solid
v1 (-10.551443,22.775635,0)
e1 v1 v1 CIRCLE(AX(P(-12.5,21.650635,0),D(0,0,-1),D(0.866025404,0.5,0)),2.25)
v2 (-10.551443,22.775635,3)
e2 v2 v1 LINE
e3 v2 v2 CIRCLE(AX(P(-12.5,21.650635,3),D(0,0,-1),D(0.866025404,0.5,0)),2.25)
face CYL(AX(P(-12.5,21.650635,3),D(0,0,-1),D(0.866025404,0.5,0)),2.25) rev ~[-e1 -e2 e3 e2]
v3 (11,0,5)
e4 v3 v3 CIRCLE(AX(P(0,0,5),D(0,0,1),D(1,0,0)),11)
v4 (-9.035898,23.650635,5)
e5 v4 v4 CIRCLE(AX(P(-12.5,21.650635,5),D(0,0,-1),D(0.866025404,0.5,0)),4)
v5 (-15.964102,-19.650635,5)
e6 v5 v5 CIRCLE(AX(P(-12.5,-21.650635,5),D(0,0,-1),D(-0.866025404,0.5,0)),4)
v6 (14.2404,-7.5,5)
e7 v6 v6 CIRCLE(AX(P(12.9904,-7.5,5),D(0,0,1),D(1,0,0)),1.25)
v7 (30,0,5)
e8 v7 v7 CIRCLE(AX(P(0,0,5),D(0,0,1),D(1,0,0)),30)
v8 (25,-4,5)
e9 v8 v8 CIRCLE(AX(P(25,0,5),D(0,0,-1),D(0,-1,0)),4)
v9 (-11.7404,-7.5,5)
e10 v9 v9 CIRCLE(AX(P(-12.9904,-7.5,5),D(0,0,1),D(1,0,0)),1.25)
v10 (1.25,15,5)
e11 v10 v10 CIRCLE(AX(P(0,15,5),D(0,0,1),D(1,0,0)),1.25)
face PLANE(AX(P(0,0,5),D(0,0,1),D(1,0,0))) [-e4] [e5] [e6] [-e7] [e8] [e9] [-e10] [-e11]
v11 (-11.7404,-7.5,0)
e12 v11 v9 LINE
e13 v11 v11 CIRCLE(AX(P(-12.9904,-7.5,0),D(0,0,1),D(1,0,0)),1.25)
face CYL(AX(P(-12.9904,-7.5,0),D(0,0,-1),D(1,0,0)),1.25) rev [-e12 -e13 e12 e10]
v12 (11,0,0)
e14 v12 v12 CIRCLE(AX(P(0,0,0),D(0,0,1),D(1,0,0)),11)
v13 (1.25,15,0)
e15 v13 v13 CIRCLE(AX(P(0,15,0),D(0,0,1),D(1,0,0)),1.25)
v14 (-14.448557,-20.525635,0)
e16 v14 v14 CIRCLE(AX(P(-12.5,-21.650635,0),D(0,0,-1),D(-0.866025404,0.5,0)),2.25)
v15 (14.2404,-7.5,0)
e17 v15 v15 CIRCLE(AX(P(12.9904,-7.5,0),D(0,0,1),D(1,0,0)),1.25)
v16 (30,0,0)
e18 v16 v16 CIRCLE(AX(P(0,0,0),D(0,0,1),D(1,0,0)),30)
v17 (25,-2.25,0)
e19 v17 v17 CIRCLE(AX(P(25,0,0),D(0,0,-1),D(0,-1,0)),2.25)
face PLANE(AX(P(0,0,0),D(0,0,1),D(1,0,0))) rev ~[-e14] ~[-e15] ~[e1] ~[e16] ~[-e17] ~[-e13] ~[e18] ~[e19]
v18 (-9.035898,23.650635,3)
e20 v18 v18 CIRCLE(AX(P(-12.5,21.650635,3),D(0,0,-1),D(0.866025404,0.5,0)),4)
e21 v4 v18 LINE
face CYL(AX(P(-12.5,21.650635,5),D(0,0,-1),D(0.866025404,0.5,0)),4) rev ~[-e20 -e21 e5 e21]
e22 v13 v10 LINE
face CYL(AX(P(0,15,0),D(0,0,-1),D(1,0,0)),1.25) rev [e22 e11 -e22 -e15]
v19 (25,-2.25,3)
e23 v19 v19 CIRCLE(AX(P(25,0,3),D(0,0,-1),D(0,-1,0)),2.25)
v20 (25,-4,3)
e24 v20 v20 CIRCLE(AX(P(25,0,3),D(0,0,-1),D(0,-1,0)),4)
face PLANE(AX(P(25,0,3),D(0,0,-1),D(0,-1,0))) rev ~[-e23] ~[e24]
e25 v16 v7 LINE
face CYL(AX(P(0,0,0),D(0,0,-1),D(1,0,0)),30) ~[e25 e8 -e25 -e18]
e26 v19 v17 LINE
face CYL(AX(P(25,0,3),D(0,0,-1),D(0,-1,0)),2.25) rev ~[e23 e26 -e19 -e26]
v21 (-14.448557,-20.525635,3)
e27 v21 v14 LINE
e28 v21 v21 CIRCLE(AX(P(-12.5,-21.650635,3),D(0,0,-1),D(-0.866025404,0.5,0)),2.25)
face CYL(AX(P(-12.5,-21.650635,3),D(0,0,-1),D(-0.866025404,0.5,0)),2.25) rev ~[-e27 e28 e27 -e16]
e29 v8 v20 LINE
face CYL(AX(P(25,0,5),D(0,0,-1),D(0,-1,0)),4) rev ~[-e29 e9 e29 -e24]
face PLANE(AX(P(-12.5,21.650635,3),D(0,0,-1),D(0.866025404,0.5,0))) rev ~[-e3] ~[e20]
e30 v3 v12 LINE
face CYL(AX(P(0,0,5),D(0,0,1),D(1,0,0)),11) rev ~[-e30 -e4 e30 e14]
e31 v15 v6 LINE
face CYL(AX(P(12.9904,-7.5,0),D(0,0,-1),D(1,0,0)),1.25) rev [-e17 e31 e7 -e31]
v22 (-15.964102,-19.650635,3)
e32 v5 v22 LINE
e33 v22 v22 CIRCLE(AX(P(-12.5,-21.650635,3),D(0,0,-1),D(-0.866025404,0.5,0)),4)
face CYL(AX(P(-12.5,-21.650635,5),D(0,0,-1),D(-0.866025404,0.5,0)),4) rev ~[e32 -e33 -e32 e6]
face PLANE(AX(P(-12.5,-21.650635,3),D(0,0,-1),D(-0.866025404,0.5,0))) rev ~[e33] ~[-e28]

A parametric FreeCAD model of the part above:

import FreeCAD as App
import Part
import Sketcher
Q = App.Units.Quantity

doc = App.newDocument("Part")
body = doc.addObject("PartDesign::Body", "Body")

sketch1 = body.newObject("Sketcher::SketchObject", "Sketch")
sketch1.AttachmentSupport = (doc.getObject("XY_Plane"), [""])
sketch1.MapMode = "FlatFace"
sketch1.addGeometry([
    Part.Circle(App.Vector(0, 0, 0), App.Vector(0, 0, 1), 30),
    Part.Circle(App.Vector(-13, -7.5, 0), App.Vector(0, 0, 1), 1.2),
    Part.Circle(App.Vector(13, -7.5, 0), App.Vector(0, 0, 1), 1.2),
    Part.Circle(App.Vector(0, 0, 0), App.Vector(0, 0, 1), 10),
    Part.Circle(App.Vector(0, 15, 0), App.Vector(0, 0, 1), 1.2),
], False)
sketch1.addConstraint([
    Sketcher.Constraint("Coincident", 0, 3, -1, 1),
    Sketcher.Constraint("Coincident", 3, 3, -1, 1),
    Sketcher.Constraint("Equal", 1, 2),
    Sketcher.Constraint("Equal", 2, 4),
    Sketcher.Constraint("Symmetric", 1, 3, 2, 3, -2),
    Sketcher.Constraint("PointOnObject", 4, 3, -2),
    Sketcher.Constraint("Diameter", 0, Q("60 mm")),
    Sketcher.Constraint("Diameter", 3, Q("20 mm")),
    Sketcher.Constraint("Diameter", 1, Q("2.5 mm")),
    Sketcher.Constraint("DistanceY", -1, 1, 4, 3, Q("15 mm")),
    Sketcher.Constraint("DistanceY", 1, 3, -1, 1, Q("7.5 mm")),
    Sketcher.Constraint("DistanceX", 1, 3, -1, 1, Q("12.9904 mm")),
])
pad1 = body.newObject("PartDesign::Pad", "Pad")
pad1.Profile = sketch1
pad1.Length = 5

sketch2 = body.newObject("Sketcher::SketchObject", "Sketch001")
sketch2.AttachmentSupport = (doc.getObject("XY_Plane"), [""])
sketch2.MapMode = "FlatFace"
sketch2.AttachmentOffset = App.Placement(App.Vector(0, 0, 5), App.Rotation())
sketch2.addGeometry(Part.Circle(App.Vector(25, 0, 0), App.Vector(0, 0, 1), 2.2), False)
sketch2.addConstraint([
    Sketcher.Constraint("PointOnObject", 0, 3, -1),
    Sketcher.Constraint("Diameter", 0, Q("4.5 mm")),
    Sketcher.Constraint("DistanceX", -1, 1, 0, 3, Q("25 mm")),
])
doc.recompute()
hole = body.newObject("PartDesign::Hole", "Hole")
hole.Profile = sketch2
hole.ThreadType = "None"
hole.Diameter = 4.5
hole.DepthType = "ThroughAll"
hole.HoleCutType = "Counterbore"
hole.HoleCutDiameter = 8
hole.HoleCutDepth = 2
doc.recompute()

polarpattern = body.newObject("PartDesign::PolarPattern", "PolarPattern")
polarpattern.Originals = [hole]
polarpattern.Axis = (doc.getObject("Z_Axis"), [""])
polarpattern.Angle = 360
polarpattern.Occurrences = 3
body.Tip = polarpattern

sketch3 = body.newObject("Sketcher::SketchObject", "Sketch002")
sketch3.AttachmentSupport = (doc.getObject("XY_Plane"), [""])
sketch3.MapMode = "FlatFace"
sketch3.AttachmentOffset = App.Placement(App.Vector(0, 0, 5), App.Rotation())
sketch3.addGeometry([
    Part.Circle(App.Vector(0, 0, 0), App.Vector(0, 0, 1), 11),
    Part.Circle(App.Vector(0, 0, 0), App.Vector(0, 0, 1), 10),
], False)
sketch3.addConstraint([
    Sketcher.Constraint("Coincident", 0, 3, -1, 1),
    Sketcher.Constraint("Coincident", 1, 3, -1, 1),
    Sketcher.Constraint("Diameter", 0, Q("22 mm")),
    Sketcher.Constraint("Diameter", 1, Q("20 mm")),
])
pocket1 = body.newObject("PartDesign::Pocket", "Pocket")
pocket1.Profile = sketch3
pocket1.Length = 10

doc.recompute()
